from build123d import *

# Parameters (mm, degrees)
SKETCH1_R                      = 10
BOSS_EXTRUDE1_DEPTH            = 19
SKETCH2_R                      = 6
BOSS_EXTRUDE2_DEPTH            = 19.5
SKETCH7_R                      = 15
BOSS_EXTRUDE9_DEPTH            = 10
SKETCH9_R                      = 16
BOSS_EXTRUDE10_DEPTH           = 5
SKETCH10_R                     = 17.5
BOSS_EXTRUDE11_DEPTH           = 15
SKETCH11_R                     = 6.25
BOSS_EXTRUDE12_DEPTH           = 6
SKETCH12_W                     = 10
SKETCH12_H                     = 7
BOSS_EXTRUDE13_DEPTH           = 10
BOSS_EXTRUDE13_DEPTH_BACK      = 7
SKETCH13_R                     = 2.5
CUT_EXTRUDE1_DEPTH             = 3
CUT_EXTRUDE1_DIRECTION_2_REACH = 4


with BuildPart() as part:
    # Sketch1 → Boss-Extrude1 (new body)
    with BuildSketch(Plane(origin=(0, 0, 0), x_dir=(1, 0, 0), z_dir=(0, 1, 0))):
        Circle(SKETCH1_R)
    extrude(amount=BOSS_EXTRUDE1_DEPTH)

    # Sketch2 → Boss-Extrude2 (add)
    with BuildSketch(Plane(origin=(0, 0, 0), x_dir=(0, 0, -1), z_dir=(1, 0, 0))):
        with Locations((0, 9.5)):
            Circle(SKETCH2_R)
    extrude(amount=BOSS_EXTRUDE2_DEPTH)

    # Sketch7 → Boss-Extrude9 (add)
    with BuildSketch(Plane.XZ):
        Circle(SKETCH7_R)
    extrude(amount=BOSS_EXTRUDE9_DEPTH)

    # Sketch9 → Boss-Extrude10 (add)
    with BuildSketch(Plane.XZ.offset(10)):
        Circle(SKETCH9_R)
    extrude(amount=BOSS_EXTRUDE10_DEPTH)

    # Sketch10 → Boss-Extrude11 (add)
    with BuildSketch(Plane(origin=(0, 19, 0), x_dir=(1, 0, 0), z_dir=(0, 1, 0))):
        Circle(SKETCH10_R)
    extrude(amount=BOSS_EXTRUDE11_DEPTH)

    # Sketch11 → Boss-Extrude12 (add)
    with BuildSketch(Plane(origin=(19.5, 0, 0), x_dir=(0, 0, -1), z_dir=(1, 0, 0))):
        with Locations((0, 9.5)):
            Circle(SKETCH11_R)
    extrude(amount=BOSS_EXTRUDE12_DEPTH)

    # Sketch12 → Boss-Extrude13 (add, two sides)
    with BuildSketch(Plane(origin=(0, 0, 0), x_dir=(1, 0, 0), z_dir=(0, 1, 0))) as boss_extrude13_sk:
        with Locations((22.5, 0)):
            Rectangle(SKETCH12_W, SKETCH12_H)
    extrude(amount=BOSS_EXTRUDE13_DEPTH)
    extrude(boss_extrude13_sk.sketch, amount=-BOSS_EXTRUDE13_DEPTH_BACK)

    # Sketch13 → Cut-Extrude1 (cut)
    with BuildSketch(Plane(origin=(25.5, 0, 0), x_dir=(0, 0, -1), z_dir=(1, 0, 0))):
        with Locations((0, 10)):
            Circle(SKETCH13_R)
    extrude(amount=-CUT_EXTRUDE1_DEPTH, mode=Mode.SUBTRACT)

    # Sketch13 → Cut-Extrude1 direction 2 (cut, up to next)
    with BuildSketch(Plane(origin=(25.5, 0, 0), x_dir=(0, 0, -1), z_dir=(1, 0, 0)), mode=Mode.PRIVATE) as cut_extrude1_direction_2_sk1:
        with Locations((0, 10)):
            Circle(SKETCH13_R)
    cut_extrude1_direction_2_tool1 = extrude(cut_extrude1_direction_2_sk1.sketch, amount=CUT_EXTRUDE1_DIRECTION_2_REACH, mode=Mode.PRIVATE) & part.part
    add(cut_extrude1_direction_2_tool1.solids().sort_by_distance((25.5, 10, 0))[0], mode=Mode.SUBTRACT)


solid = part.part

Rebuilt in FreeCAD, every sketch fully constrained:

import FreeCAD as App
import Part
import Sketcher


def add_polygon(sketch, points):
    """Adds a closed chain of lines whose ends are joined by coincident constraints."""
    first, n = sketch.GeometryCount, len(points)
    for a, b in zip(points, points[1:] + points[:1]):
        sketch.addGeometry(Part.LineSegment(App.Vector(*a, 0), App.Vector(*b, 0)), False)
    for i in range(n):
        sketch.addConstraint(Sketcher.Constraint("Coincident", first + i, 2, first + (i + 1) % n, 1))

doc = App.newDocument("Part")
params = doc.addObject("Spreadsheet::Sheet", "Params")
for row, (alias, value) in enumerate([
    ("sketch1_diameter", "20 mm"),
    ("pad1_length", "19 mm"),
    ("sketch2_diameter", "12 mm"),
    ("pad2_length", "19.5 mm"),
    ("sketch3_diameter", "30 mm"),
    ("pad3_length", "10 mm"),
    ("sketch4_diameter", "32 mm"),
    ("pad4_length", "5 mm"),
    ("sketch5_diameter", "35 mm"),
    ("pad5_length", "15 mm"),
    ("sketch6_diameter", "12.5 mm"),
    ("pad6_length", "6 mm"),
    ("sketch7_width", "10 mm"),
    ("sketch7_height", "7 mm"),
    ("pad7_length", "10 mm"),
    ("pad7_length2", "7 mm"),
    ("sketch8_diameter", "5 mm"),
    ("pocket1_length", "3 mm"),
    ("sketch9_diameter", "5 mm"),
], start=1):
    params.set(f"A{row}", alias)
    params.set(f"B{row}", "=" + value)
    params.setAlias(f"B{row}", alias)

body = doc.addObject("PartDesign::Body", "Body")

# Sketch on XZ plane
sketch1 = body.newObject("Sketcher::SketchObject", "Sketch")
sketch1.AttachmentSupport = (doc.getObject("XZ_Plane"), [""])
sketch1.MapMode = "FlatFace"
sketch1.addGeometry(Part.Circle(App.Vector(0, 0, 0), App.Vector(0, 0, 1), 10), False)
sketch1.addConstraint([
    Sketcher.Constraint("Coincident", 0, 3, -1, 1),
    Sketcher.Constraint("Diameter", 0, 20.0),
])
sketch1.setExpression("Constraints[1]", "Params.sketch1_diameter")
pad1 = body.newObject("PartDesign::Pad", "Pad")
pad1.Profile = sketch1
pad1.setExpression("Length", "Params.pad1_length")
pad1.Reversed = True

# Sketch on YZ plane
sketch2 = body.newObject("Sketcher::SketchObject", "Sketch001")
sketch2.AttachmentSupport = (doc.getObject("YZ_Plane"), [""])
sketch2.MapMode = "FlatFace"
sketch2.addGeometry(Part.Circle(App.Vector(10, 0, 0), App.Vector(0, 0, 1), 6), False)
sketch2.addConstraint([
    Sketcher.Constraint("PointOnObject", 0, 3, -1),
    Sketcher.Constraint("Diameter", 0, 12.0),
    Sketcher.Constraint("DistanceX", -1, 1, 0, 3, 9.5),
])
sketch2.setExpression("Constraints[1]", "Params.sketch2_diameter")
pad2 = body.newObject("PartDesign::Pad", "Pad001")
pad2.Profile = sketch2
pad2.setExpression("Length", "Params.pad2_length")

# Sketch on XZ plane
sketch3 = body.newObject("Sketcher::SketchObject", "Sketch002")
sketch3.AttachmentSupport = (doc.getObject("XZ_Plane"), [""])
sketch3.MapMode = "FlatFace"
sketch3.addGeometry(Part.Circle(App.Vector(0, 0, 0), App.Vector(0, 0, 1), 15), False)
sketch3.addConstraint([
    Sketcher.Constraint("Coincident", 0, 3, -1, 1),
    Sketcher.Constraint("Diameter", 0, 30.0),
])
sketch3.setExpression("Constraints[1]", "Params.sketch3_diameter")
pad3 = body.newObject("PartDesign::Pad", "Pad002")
pad3.Profile = sketch3
pad3.setExpression("Length", "Params.pad3_length")

# Sketch on XZ plane
sketch4 = body.newObject("Sketcher::SketchObject", "Sketch003")
sketch4.AttachmentSupport = (doc.getObject("XZ_Plane"), [""])
sketch4.MapMode = "FlatFace"
sketch4.AttachmentOffset = App.Placement(App.Vector(0, 0, 10), App.Rotation())
sketch4.addGeometry(Part.Circle(App.Vector(0, 0, 0), App.Vector(0, 0, 1), 16), False)
sketch4.addConstraint([
    Sketcher.Constraint("Coincident", 0, 3, -1, 1),
    Sketcher.Constraint("Diameter", 0, 32.0),
])
sketch4.setExpression("Constraints[1]", "Params.sketch4_diameter")
pad4 = body.newObject("PartDesign::Pad", "Pad003")
pad4.Profile = sketch4
pad4.setExpression("Length", "Params.pad4_length")

# Sketch on XZ plane
sketch5 = body.newObject("Sketcher::SketchObject", "Sketch004")
sketch5.AttachmentSupport = (doc.getObject("XZ_Plane"), [""])
sketch5.MapMode = "FlatFace"
sketch5.AttachmentOffset = App.Placement(App.Vector(0, 0, -19), App.Rotation())
sketch5.addGeometry(Part.Circle(App.Vector(0, 0, 0), App.Vector(0, 0, 1), 18), False)
sketch5.addConstraint([
    Sketcher.Constraint("Coincident", 0, 3, -1, 1),
    Sketcher.Constraint("Diameter", 0, 35.0),
])
sketch5.setExpression("Constraints[1]", "Params.sketch5_diameter")
pad5 = body.newObject("PartDesign::Pad", "Pad004")
pad5.Profile = sketch5
pad5.setExpression("Length", "Params.pad5_length")
pad5.Reversed = True

# Sketch on YZ plane
sketch6 = body.newObject("Sketcher::SketchObject", "Sketch005")
sketch6.AttachmentSupport = (doc.getObject("YZ_Plane"), [""])
sketch6.MapMode = "FlatFace"
sketch6.AttachmentOffset = App.Placement(App.Vector(0, 0, 19.5), App.Rotation())
sketch6.addGeometry(Part.Circle(App.Vector(10, 0, 0), App.Vector(0, 0, 1), 6), False)
sketch6.addConstraint([
    Sketcher.Constraint("PointOnObject", 0, 3, -1),
    Sketcher.Constraint("Diameter", 0, 12.5),
    Sketcher.Constraint("DistanceX", -1, 1, 0, 3, 9.5),
])
sketch6.setExpression("Constraints[1]", "Params.sketch6_diameter")
pad6 = body.newObject("PartDesign::Pad", "Pad005")
pad6.Profile = sketch6
pad6.setExpression("Length", "Params.pad6_length")

# Sketch on XZ plane
sketch7 = body.newObject("Sketcher::SketchObject", "Sketch006")
sketch7.AttachmentSupport = (doc.getObject("XZ_Plane"), [""])
sketch7.MapMode = "FlatFace"
add_polygon(sketch7, [(18, -4), (18, 4), (28, 4), (28, -4)])  # lines 0-3
sketch7.addConstraint([
    Sketcher.Constraint("Vertical", 0),
    Sketcher.Constraint("Horizontal", 1),
    Sketcher.Constraint("Vertical", 2),
    Sketcher.Constraint("Horizontal", 3),
    Sketcher.Constraint("DistanceX", 1, 1, 1, 2, 10.0),
    Sketcher.Constraint("DistanceY", 0, 1, 0, 2, 7.0),
    Sketcher.Constraint("DistanceX", -1, 1, 0, 2, 17.5),
    Sketcher.Constraint("DistanceY", -1, 1, 0, 2, 3.5),
])
sketch7.setExpression("Constraints[8]", "Params.sketch7_width")
sketch7.setExpression("Constraints[9]", "Params.sketch7_height")
pad7 = body.newObject("PartDesign::Pad", "Pad006")
pad7.Profile = sketch7
pad7.Type = "TwoLengths"
pad7.setExpression("Length", "Params.pad7_length")
pad7.setExpression("Length2", "Params.pad7_length2")
pad7.Reversed = True

# Sketch on YZ plane
sketch8 = body.newObject("Sketcher::SketchObject", "Sketch007")
sketch8.AttachmentSupport = (doc.getObject("YZ_Plane"), [""])
sketch8.MapMode = "FlatFace"
sketch8.AttachmentOffset = App.Placement(App.Vector(0, 0, 25.5), App.Rotation())
sketch8.addGeometry(Part.Circle(App.Vector(10, 0, 0), App.Vector(0, 0, 1), 2.5), False)
sketch8.addConstraint([
    Sketcher.Constraint("PointOnObject", 0, 3, -1),
    Sketcher.Constraint("Diameter", 0, 5.0),
    Sketcher.Constraint("DistanceX", -1, 1, 0, 3, 10.0),
])
sketch8.setExpression("Constraints[1]", "Params.sketch8_diameter")
pocket1 = body.newObject("PartDesign::Pocket", "Pocket")
pocket1.Profile = sketch8
pocket1.setExpression("Length", "Params.pocket1_length")

# Sketch on YZ plane
sketch9 = body.newObject("Sketcher::SketchObject", "Sketch008")
sketch9.AttachmentSupport = (doc.getObject("YZ_Plane"), [""])
sketch9.MapMode = "FlatFace"
sketch9.AttachmentOffset = App.Placement(App.Vector(0, 0, 25.5), App.Rotation())
sketch9.addGeometry(Part.Circle(App.Vector(10, 0, 0), App.Vector(0, 0, 1), 2.5), False)
sketch9.addConstraint([
    Sketcher.Constraint("PointOnObject", 0, 3, -1),
    Sketcher.Constraint("Diameter", 0, 5.0),
    Sketcher.Constraint("DistanceX", -1, 1, 0, 3, 10.0),
])
sketch9.setExpression("Constraints[1]", "Params.sketch9_diameter")
pocket2 = body.newObject("PartDesign::Pocket", "Pocket001")
pocket2.Profile = sketch9
pocket2.Type = "UpToFirst"
pocket2.Reversed = True

doc.recompute()
